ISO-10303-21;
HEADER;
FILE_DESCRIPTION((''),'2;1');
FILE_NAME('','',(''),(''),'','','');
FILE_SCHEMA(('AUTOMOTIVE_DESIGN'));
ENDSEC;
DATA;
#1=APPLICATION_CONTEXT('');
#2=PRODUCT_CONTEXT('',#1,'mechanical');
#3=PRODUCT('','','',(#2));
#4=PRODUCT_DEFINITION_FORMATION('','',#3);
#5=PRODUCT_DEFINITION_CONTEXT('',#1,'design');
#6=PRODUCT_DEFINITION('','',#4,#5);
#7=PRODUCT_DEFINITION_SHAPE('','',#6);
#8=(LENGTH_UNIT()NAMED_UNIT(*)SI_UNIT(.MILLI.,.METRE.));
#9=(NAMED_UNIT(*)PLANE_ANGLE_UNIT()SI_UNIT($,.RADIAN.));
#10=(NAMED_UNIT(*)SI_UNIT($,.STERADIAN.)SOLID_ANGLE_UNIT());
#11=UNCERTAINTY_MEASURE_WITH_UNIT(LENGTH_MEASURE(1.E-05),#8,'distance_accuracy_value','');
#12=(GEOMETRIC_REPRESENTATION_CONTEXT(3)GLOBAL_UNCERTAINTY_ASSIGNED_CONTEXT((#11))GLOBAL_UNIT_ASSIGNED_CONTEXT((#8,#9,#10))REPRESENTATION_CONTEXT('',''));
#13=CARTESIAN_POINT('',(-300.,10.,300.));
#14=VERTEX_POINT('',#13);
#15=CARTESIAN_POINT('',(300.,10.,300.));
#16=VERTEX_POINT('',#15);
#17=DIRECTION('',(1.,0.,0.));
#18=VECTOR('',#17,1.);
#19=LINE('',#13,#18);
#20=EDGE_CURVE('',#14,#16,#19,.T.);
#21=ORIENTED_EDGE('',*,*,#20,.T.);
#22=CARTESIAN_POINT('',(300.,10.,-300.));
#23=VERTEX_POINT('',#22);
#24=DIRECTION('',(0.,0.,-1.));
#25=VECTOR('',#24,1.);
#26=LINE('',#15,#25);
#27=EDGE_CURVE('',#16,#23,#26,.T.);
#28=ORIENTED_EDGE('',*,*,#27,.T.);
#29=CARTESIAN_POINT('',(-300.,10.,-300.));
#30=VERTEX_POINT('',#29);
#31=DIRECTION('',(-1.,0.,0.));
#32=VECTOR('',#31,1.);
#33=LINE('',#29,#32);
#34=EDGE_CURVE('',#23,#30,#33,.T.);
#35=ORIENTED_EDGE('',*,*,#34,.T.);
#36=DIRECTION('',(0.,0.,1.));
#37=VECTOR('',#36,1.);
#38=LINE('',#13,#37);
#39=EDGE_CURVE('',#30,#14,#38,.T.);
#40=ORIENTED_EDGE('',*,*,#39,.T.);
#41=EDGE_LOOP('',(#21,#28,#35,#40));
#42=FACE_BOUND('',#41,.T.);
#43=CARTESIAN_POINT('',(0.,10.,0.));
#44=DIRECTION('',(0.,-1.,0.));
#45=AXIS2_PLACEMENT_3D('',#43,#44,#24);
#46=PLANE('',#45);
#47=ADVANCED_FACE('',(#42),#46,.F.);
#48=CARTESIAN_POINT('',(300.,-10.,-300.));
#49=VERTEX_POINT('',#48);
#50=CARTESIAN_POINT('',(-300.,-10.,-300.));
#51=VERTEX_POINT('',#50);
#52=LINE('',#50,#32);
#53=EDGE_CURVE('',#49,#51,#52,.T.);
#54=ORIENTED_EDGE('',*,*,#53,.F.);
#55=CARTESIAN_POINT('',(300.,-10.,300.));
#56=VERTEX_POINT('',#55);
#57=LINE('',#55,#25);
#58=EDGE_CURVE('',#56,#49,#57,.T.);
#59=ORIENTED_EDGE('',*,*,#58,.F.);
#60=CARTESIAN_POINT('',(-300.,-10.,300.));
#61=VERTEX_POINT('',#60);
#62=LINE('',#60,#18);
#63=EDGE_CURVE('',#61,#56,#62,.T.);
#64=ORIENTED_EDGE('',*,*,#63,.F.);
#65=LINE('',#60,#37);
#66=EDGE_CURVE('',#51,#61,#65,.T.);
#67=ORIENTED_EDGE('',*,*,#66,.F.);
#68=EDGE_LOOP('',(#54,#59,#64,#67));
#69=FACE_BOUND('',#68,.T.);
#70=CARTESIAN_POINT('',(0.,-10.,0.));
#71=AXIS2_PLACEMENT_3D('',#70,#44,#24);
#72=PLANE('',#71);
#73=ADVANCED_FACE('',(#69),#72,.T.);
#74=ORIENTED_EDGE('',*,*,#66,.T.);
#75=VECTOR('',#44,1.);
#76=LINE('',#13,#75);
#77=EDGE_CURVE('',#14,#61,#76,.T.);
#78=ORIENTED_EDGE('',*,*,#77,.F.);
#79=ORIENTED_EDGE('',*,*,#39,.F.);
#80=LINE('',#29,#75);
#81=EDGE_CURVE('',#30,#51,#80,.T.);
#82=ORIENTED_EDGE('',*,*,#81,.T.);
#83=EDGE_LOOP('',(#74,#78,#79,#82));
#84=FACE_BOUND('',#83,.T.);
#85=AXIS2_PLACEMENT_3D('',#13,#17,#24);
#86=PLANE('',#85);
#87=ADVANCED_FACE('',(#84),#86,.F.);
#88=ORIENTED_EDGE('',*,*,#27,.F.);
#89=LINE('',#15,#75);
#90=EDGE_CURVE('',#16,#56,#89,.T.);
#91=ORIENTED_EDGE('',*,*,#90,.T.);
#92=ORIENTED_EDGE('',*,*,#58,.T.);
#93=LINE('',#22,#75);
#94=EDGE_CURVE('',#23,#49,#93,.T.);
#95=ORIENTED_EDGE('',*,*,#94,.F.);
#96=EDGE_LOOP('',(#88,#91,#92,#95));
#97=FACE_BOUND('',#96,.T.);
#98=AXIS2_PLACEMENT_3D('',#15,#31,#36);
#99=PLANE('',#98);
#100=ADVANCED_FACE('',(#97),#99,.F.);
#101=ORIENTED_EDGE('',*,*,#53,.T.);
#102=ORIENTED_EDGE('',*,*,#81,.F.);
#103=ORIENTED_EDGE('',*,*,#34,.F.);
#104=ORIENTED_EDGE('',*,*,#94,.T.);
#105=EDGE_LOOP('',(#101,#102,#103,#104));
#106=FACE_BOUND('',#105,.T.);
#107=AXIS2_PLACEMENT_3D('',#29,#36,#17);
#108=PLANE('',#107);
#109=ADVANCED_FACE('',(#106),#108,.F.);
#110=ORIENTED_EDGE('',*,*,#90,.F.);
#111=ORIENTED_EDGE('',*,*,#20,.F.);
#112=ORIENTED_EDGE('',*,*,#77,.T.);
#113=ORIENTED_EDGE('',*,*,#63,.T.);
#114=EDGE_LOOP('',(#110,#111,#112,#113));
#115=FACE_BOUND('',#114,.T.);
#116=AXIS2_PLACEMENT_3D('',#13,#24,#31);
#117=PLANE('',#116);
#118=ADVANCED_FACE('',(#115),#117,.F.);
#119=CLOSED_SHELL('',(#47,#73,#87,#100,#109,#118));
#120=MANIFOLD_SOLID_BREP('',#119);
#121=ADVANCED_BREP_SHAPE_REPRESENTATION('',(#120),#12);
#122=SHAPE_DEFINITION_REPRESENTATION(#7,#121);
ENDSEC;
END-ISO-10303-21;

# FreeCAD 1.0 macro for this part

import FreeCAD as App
import Part
import Sketcher
Q = App.Units.Quantity


def add_polygon(sketch, points):
    """Adds a closed chain of lines whose ends are joined by coincident constraints."""
    first, n = sketch.GeometryCount, len(points)
    for a, b in zip(points, points[1:] + points[:1]):
        sketch.addGeometry(Part.LineSegment(App.Vector(*a, 0), App.Vector(*b, 0)), False)
    for i in range(n):
        sketch.addConstraint(Sketcher.Constraint("Coincident", first + i, 2, first + (i + 1) % n, 1))

doc = App.newDocument("Part")
body = doc.addObject("PartDesign::Body", "Body")

# Sketch on XZ plane
sketch1 = body.newObject("Sketcher::SketchObject", "Sketch")
sketch1.AttachmentSupport = (doc.getObject("XZ_Plane"), [""])
sketch1.MapMode = "FlatFace"
add_polygon(sketch1, [(-300, -300), (-300, 300), (300, 300), (300, -300)])  # lines 0-3
sketch1.addConstraint(Sketcher.Constraint("Vertical", 0))
sketch1.addConstraint(Sketcher.Constraint("Horizontal", 1))
sketch1.addConstraint(Sketcher.Constraint("Vertical", 2))
sketch1.addConstraint(Sketcher.Constraint("Horizontal", 3))
sketch1.addConstraint(Sketcher.Constraint("Symmetric", 0, 2, 2, 2, -1, 1))
sketch1.addConstraint(Sketcher.Constraint("Equal", 3, 0))
sketch1.addConstraint(Sketcher.Constraint("DistanceX", 1, 1, 1, 2, Q("600 mm")))
pad1 = body.newObject("PartDesign::Pad", "Pad")
pad1.Profile = sketch1
pad1.Length = 20
pad1.Midplane = True

doc.recompute()
